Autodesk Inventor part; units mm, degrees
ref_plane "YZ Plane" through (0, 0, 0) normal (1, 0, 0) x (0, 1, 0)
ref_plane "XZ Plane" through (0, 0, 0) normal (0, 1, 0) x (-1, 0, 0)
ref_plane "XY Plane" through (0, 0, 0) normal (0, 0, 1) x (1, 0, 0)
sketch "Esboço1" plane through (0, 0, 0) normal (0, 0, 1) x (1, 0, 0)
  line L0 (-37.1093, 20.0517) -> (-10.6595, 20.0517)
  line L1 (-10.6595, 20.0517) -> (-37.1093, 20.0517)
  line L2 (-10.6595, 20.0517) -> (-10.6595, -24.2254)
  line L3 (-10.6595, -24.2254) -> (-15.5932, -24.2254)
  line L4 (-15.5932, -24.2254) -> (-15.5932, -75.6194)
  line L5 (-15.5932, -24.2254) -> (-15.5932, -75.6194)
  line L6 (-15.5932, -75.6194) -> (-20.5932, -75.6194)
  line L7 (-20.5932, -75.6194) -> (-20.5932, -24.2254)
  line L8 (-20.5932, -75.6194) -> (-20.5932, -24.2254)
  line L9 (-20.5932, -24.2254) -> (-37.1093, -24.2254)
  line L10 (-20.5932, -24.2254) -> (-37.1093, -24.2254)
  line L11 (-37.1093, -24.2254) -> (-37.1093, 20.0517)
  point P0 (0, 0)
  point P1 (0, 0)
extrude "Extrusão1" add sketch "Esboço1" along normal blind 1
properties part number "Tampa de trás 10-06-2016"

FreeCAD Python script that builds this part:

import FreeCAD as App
import Part
import Sketcher
from FreeCAD import Vector
Q = App.Units.Quantity

doc = App.newDocument("Part")
body = doc.addObject("PartDesign::Body", "Body")

sketch1 = body.newObject("Sketcher::SketchObject", "Sketch")
sketch1.AttachmentSupport = (doc.getObject("XY_Plane"), [""])
sketch1.MapMode = "FlatFace"
sketch1.addGeometry([
    Part.LineSegment(Vector(-10.6595, 20.0517, 0), Vector(-37.1093, 20.0517, 0)),
    Part.LineSegment(Vector(-37.1093, 20.0517, 0), Vector(-37.1093, -24.2254, 0)),
    Part.LineSegment(Vector(-37.1093, -24.2254, 0), Vector(-20.5932, -24.2254, 0)),
    Part.LineSegment(Vector(-20.5932, -24.2254, 0), Vector(-20.5932, -75.6194, 0)),
    Part.LineSegment(Vector(-20.5932, -75.6194, 0), Vector(-15.5932, -75.6194, 0)),
    Part.LineSegment(Vector(-15.5932, -75.6194, 0), Vector(-15.5932, -24.2254, 0)),
    Part.LineSegment(Vector(-15.5932, -24.2254, 0), Vector(-10.6595, -24.2254, 0)),
    Part.LineSegment(Vector(-10.6595, -24.2254, 0), Vector(-10.6595, 20.0517, 0)),
], False)
sketch1.addConstraint([
    Sketcher.Constraint("Coincident", 0, 2, 1, 1),
    Sketcher.Constraint("Coincident", 1, 2, 2, 1),
    Sketcher.Constraint("Coincident", 2, 2, 3, 1),
    Sketcher.Constraint("Coincident", 3, 2, 4, 1),
    Sketcher.Constraint("Coincident", 4, 2, 5, 1),
    Sketcher.Constraint("Coincident", 5, 2, 6, 1),
    Sketcher.Constraint("Coincident", 6, 2, 7, 1),
    Sketcher.Constraint("Coincident", 7, 2, 0, 1),
    Sketcher.Constraint("Horizontal", 0),
    Sketcher.Constraint("Vertical", 1),
    Sketcher.Constraint("Horizontal", 2),
    Sketcher.Constraint("Vertical", 3),
    Sketcher.Constraint("Horizontal", 4),
    Sketcher.Constraint("Vertical", 5),
    Sketcher.Constraint("Horizontal", 6),
    Sketcher.Constraint("Vertical", 7),
    Sketcher.Constraint("Horizontal", 2, 2, 5, 2),
    Sketcher.Constraint("DistanceX", 4, 1, 4, 2, Q("5 mm")),
    Sketcher.Constraint("DistanceX", 2, 1, 2, 2, Q("16.516 mm")),
    Sketcher.Constraint("DistanceY", 1, 2, 1, 1, Q("44.277 mm")),
    Sketcher.Constraint("DistanceY", 3, 2, 3, 1, Q("51.394 mm")),
    Sketcher.Constraint("DistanceX", 0, 2, 0, 1, Q("26.4498 mm")),
    Sketcher.Constraint("DistanceX", 0, 2, -1, 1, Q("37.1093 mm")),
    Sketcher.Constraint("DistanceY", -1, 1, 0, 2, Q("20.0517 mm")),
])
pad1 = body.newObject("PartDesign::Pad", "Pad")
pad1.Profile = sketch1
pad1.Length = 1

doc.recompute()
